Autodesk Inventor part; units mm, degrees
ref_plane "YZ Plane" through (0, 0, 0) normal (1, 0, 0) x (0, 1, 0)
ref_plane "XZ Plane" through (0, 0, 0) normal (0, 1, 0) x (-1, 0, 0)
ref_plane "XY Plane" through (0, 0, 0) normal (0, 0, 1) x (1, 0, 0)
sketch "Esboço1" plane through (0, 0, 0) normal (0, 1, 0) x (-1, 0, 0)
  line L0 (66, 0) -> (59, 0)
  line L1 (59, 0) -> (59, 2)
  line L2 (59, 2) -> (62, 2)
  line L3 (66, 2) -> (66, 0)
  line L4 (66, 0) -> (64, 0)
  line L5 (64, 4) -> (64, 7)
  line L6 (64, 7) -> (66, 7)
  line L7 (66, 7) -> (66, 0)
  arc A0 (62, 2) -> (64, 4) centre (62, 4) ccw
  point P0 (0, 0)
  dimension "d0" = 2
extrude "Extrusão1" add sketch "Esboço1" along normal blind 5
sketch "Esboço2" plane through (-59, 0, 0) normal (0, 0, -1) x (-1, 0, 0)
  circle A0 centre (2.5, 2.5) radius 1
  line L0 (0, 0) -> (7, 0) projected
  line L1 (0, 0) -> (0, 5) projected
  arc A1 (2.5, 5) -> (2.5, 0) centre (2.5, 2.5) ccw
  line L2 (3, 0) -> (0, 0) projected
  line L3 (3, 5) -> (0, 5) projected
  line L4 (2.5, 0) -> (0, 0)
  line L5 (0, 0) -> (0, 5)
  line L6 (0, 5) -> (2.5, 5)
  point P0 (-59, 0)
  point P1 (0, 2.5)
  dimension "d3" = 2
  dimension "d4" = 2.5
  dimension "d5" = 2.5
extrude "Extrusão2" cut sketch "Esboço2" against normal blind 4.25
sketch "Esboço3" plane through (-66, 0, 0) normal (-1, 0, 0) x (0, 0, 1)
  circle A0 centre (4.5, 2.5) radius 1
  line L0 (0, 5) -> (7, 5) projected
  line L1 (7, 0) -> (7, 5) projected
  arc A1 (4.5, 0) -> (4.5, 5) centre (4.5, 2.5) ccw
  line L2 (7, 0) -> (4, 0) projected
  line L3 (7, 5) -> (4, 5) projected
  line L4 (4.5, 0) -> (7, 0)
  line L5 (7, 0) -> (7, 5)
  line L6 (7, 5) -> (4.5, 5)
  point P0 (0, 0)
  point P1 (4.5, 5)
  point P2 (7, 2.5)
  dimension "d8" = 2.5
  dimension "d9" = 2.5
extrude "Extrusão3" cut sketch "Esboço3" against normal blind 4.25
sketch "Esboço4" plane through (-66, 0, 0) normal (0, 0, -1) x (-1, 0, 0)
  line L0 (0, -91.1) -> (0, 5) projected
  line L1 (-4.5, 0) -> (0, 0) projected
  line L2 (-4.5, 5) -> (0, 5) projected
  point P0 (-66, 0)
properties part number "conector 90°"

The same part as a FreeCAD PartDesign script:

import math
import FreeCAD as App
import Part
import Sketcher
from FreeCAD import Vector
Q = App.Units.Quantity

doc = App.newDocument("Part")
body = doc.addObject("PartDesign::Body", "Body")

# Sketch on XZ plane
sketch1 = body.newObject("Sketcher::SketchObject", "Sketch")
sketch1.AttachmentSupport = (doc.getObject("XZ_Plane"), [""])
sketch1.MapMode = "FlatFace"
sketch1.addGeometry(Part.LineSegment(Vector(-59, 0, 0), Vector(-66, 0, 0)), False)
sketch1.addGeometry(Part.LineSegment(Vector(-66, 0, 0), Vector(-66, 7, 0)), False)
sketch1.addGeometry(Part.LineSegment(Vector(-66, 7, 0), Vector(-64, 7, 0)), False)
sketch1.addGeometry(Part.LineSegment(Vector(-64, 7, 0), Vector(-64, 4, 0)), False)
sketch1.addGeometry(Part.ArcOfCircle(Part.Circle(Vector(-62, 4, 0), Vector(0, 0, 1), 2), math.radians(180), math.radians(270)), False)
sketch1.addGeometry(Part.LineSegment(Vector(-62, 2, 0), Vector(-59, 2, 0)), False)
sketch1.addGeometry(Part.LineSegment(Vector(-59, 2, 0), Vector(-59, 0, 0)), False)
sketch1.addConstraint(Sketcher.Constraint("Coincident", 0, 2, 1, 1))
sketch1.addConstraint(Sketcher.Constraint("Coincident", 1, 2, 2, 1))
sketch1.addConstraint(Sketcher.Constraint("Coincident", 2, 2, 3, 1))
sketch1.addConstraint(Sketcher.Constraint("Tangent", 3, 2, 4, 1))
sketch1.addConstraint(Sketcher.Constraint("Tangent", 4, 2, 5, 1))
sketch1.addConstraint(Sketcher.Constraint("Coincident", 5, 2, 6, 1))
sketch1.addConstraint(Sketcher.Constraint("Coincident", 6, 2, 0, 1))
sketch1.addConstraint(Sketcher.Constraint("Horizontal", 0))
sketch1.addConstraint(Sketcher.Constraint("Vertical", 1))
sketch1.addConstraint(Sketcher.Constraint("Horizontal", 2))
sketch1.addConstraint(Sketcher.Constraint("Vertical", 3))
sketch1.addConstraint(Sketcher.Constraint("Horizontal", 5))
sketch1.addConstraint(Sketcher.Constraint("Vertical", 6))
sketch1.addConstraint(Sketcher.Constraint("PointOnObject", 0, 2, -1))
sketch1.addConstraint(Sketcher.Constraint("Equal", 0, 1))
sketch1.addConstraint(Sketcher.Constraint("Equal", 5, 3))
sketch1.addConstraint(Sketcher.Constraint("Radius", 4, Q("2 mm")))
sketch1.addConstraint(Sketcher.Constraint("DistanceX", 2, 1, 2, 2, Q("2 mm")))
sketch1.addConstraint(Sketcher.Constraint("DistanceX", 0, 2, 0, 1, Q("7 mm")))
sketch1.addConstraint(Sketcher.Constraint("DistanceX", 4, 3, -1, 1, Q("62 mm")))
pad1 = body.newObject("PartDesign::Pad", "Pad")
pad1.Profile = sketch1
pad1.Length = 5
pad1.Reversed = True

# Sketch on XY plane
sketch2 = body.newObject("Sketcher::SketchObject", "Sketch001")
sketch2.AttachmentSupport = (doc.getObject("XY_Plane"), [""])
sketch2.MapMode = "FlatFace"
sketch2.addGeometry(Part.Circle(Vector(-61.5, 2.5, 0), Vector(0, 0, 1), 1), False)
sketch2.addGeometry(Part.LineSegment(Vector(-59, 2.5, 0), Vector(-59, 0, 0)), False)
sketch2.addGeometry(Part.LineSegment(Vector(-59, 0, 0), Vector(-61.5, 0, 0)), False)
sketch2.addGeometry(Part.ArcOfCircle(Part.Circle(Vector(-61.5, 2.5, 0), Vector(0, 0, 1), 2.5), math.radians(-90), math.radians(0)), False)
sketch2.addGeometry(Part.LineSegment(Vector(-59, 5, 0), Vector(-59, 2.5, 0)), False)
sketch2.addGeometry(Part.ArcOfCircle(Part.Circle(Vector(-61.5, 2.5, 0), Vector(0, 0, 1), 2.5), math.radians(0), math.radians(90)), False)
sketch2.addGeometry(Part.LineSegment(Vector(-61.5, 5, 0), Vector(-59, 5, 0)), False)
sketch2.addConstraint(Sketcher.Constraint("Coincident", 1, 2, 2, 1))
sketch2.addConstraint(Sketcher.Constraint("Tangent", 2, 2, 3, 1))
sketch2.addConstraint(Sketcher.Constraint("Tangent", 3, 2, 1, 1))
sketch2.addConstraint(Sketcher.Constraint("Tangent", 4, 2, 5, 1))
sketch2.addConstraint(Sketcher.Constraint("Tangent", 5, 2, 6, 1))
sketch2.addConstraint(Sketcher.Constraint("Coincident", 6, 2, 4, 1))
sketch2.addConstraint(Sketcher.Constraint("Vertical", 1))
sketch2.addConstraint(Sketcher.Constraint("Horizontal", 2))
sketch2.addConstraint(Sketcher.Constraint("Vertical", 4))
sketch2.addConstraint(Sketcher.Constraint("Horizontal", 6))
sketch2.addConstraint(Sketcher.Constraint("Coincident", 3, 3, 0, 3))
sketch2.addConstraint(Sketcher.Constraint("Coincident", 5, 3, 0, 3))
sketch2.addConstraint(Sketcher.Constraint("Equal", 3, 5))
sketch2.addConstraint(Sketcher.Constraint("PointOnObject", 1, 2, -1))
sketch2.addConstraint(Sketcher.Constraint("Diameter", 0, Q("2 mm")))
sketch2.addConstraint(Sketcher.Constraint("Radius", 3, Q("2.5 mm")))
sketch2.addConstraint(Sketcher.Constraint("DistanceX", 1, 2, -1, 1, Q("59 mm")))
pocket1 = body.newObject("PartDesign::Pocket", "Pocket")
pocket1.Profile = sketch2
pocket1.Length = 4.25
pocket1.Reversed = True

# Sketch on YZ plane
sketch3 = body.newObject("Sketcher::SketchObject", "Sketch002")
sketch3.AttachmentSupport = (doc.getObject("YZ_Plane"), [""])
sketch3.MapMode = "FlatFace"
sketch3.AttachmentOffset = App.Placement(Vector(0, 0, -66), App.Rotation())
sketch3.addGeometry(Part.Circle(Vector(2.5, 4.5, 0), Vector(0, 0, 1), 1), False)
sketch3.addGeometry(Part.LineSegment(Vector(0, 7, 0), Vector(2.5, 7, 0)), False)
sketch3.addGeometry(Part.ArcOfCircle(Part.Circle(Vector(2.5, 4.5, 0), Vector(0, 0, 1), 2.5), math.radians(90), math.radians(180)), False)
sketch3.addGeometry(Part.LineSegment(Vector(0, 4.5, 0), Vector(0, 7, 0)), False)
sketch3.addGeometry(Part.LineSegment(Vector(5, 7, 0), Vector(5, 4.5, 0)), False)
sketch3.addGeometry(Part.ArcOfCircle(Part.Circle(Vector(2.5, 4.5, 0), Vector(0, 0, 1), 2.5), math.radians(0), math.radians(90)), False)
sketch3.addGeometry(Part.LineSegment(Vector(2.5, 7, 0), Vector(5, 7, 0)), False)
sketch3.addConstraint(Sketcher.Constraint("Tangent", 1, 2, 2, 1))
sketch3.addConstraint(Sketcher.Constraint("Tangent", 2, 2, 3, 1))
sketch3.addConstraint(Sketcher.Constraint("Coincident", 3, 2, 1, 1))
sketch3.addConstraint(Sketcher.Constraint("Tangent", 4, 2, 5, 1))
sketch3.addConstraint(Sketcher.Constraint("Tangent", 5, 2, 6, 1))
sketch3.addConstraint(Sketcher.Constraint("Coincident", 6, 2, 4, 1))
sketch3.addConstraint(Sketcher.Constraint("Horizontal", 1))
sketch3.addConstraint(Sketcher.Constraint("Vertical", 3))
sketch3.addConstraint(Sketcher.Constraint("Vertical", 4))
sketch3.addConstraint(Sketcher.Constraint("Horizontal", 6))
sketch3.addConstraint(Sketcher.Constraint("Coincident", 2, 3, 0, 3))
sketch3.addConstraint(Sketcher.Constraint("Coincident", 5, 3, 0, 3))
sketch3.addConstraint(Sketcher.Constraint("Equal", 2, 5))
sketch3.addConstraint(Sketcher.Constraint("PointOnObject", 2, 2, -2))
sketch3.addConstraint(Sketcher.Constraint("Radius", 2, Q("2.5 mm")))
sketch3.addConstraint(Sketcher.Constraint("Diameter", 0, Q("2 mm")))
sketch3.addConstraint(Sketcher.Constraint("DistanceY", -1, 1, 1, 2, Q("7 mm")))
pocket2 = body.newObject("PartDesign::Pocket", "Pocket001")
pocket2.Profile = sketch3
pocket2.Length = 4.25
pocket2.Reversed = True

doc.recompute()
